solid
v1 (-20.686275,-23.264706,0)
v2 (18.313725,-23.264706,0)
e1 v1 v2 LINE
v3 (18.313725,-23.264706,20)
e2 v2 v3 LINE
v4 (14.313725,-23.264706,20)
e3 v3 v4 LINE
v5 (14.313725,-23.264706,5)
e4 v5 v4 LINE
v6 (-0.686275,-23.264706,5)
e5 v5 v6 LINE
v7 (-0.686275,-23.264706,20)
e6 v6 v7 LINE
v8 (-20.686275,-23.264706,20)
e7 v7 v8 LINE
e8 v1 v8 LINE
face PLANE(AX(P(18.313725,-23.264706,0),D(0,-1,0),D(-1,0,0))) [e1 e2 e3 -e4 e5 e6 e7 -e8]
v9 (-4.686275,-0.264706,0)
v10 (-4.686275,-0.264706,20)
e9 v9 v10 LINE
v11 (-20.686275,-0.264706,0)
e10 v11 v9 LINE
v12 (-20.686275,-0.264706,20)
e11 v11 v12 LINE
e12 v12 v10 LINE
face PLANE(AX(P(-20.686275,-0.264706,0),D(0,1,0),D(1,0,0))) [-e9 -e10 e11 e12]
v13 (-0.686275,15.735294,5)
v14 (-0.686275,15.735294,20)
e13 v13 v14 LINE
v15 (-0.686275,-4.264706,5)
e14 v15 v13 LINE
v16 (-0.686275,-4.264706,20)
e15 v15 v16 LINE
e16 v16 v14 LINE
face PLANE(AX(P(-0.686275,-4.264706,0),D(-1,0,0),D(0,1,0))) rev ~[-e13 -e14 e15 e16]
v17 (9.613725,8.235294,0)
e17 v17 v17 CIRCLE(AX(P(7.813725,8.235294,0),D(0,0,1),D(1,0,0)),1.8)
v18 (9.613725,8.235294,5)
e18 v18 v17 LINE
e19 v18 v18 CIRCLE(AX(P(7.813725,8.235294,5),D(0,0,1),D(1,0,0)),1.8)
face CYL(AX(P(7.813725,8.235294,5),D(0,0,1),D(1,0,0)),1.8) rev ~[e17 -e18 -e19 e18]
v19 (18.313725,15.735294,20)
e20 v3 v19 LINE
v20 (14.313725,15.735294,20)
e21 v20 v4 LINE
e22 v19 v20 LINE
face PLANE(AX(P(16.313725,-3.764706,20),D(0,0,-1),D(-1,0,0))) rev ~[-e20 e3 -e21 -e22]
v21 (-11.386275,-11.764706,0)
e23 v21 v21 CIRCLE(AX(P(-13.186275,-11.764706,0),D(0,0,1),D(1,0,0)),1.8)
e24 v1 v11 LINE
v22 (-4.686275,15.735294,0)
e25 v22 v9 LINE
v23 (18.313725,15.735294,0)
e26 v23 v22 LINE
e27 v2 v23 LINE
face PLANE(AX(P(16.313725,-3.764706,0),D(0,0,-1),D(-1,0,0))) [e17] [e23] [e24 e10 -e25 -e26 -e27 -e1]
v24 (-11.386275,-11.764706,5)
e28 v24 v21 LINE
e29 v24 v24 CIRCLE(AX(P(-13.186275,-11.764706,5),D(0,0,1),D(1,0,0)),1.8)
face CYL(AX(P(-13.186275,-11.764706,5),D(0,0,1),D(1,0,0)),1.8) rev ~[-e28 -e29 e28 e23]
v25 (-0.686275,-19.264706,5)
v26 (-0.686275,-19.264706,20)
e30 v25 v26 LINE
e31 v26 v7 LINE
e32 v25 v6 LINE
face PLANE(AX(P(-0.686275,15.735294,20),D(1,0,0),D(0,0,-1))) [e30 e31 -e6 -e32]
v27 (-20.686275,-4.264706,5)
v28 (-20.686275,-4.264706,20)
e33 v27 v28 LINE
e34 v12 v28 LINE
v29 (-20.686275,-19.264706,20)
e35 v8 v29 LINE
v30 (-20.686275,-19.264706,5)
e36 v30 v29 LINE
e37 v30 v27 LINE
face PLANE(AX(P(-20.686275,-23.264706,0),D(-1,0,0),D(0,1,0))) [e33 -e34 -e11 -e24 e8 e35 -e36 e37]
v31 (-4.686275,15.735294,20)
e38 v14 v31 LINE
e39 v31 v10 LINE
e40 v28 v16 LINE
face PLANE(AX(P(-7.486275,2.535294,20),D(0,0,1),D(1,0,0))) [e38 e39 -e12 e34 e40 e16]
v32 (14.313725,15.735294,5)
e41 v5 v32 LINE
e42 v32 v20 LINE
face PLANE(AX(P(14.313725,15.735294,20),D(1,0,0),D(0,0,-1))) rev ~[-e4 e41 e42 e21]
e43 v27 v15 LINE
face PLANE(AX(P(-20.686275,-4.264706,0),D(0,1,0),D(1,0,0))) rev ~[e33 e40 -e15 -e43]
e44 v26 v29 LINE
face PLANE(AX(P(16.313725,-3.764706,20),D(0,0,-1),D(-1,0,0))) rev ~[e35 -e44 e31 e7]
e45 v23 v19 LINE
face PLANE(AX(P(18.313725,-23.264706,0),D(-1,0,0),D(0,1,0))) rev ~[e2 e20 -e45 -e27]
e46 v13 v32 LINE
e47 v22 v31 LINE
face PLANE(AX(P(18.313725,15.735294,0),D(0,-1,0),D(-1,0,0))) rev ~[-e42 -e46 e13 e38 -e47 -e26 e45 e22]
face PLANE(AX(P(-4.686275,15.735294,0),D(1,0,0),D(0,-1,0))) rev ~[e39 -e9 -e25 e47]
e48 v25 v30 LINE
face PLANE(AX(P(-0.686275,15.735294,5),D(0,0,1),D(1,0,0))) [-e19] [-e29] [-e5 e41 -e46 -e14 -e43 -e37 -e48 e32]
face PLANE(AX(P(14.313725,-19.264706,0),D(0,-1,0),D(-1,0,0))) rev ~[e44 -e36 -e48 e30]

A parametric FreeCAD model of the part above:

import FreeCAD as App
import Part
import Sketcher
Q = App.Units.Quantity


def add_polygon(sketch, points):
    """Adds a closed chain of lines whose ends are joined by coincident constraints."""
    first, n = sketch.GeometryCount, len(points)
    for a, b in zip(points, points[1:] + points[:1]):
        sketch.addGeometry(Part.LineSegment(App.Vector(*a, 0), App.Vector(*b, 0)), False)
    for i in range(n):
        sketch.addConstraint(Sketcher.Constraint("Coincident", first + i, 2, first + (i + 1) % n, 1))

doc = App.newDocument("Part")
body = doc.addObject("PartDesign::Body", "Body")

sketch1 = body.newObject("Sketcher::SketchObject", "Sketch")
sketch1.AttachmentSupport = (doc.getObject("XY_Plane"), [""])
sketch1.MapMode = "FlatFace"
add_polygon(sketch1, [(-1, -4), (-21, -4), (-21, -19), (14, -19), (14, 16), (-1, 16)])
sketch1.addConstraint(Sketcher.Constraint("Horizontal", 0))
sketch1.addConstraint(Sketcher.Constraint("Vertical", 1))
sketch1.addConstraint(Sketcher.Constraint("Horizontal", 2))
sketch1.addConstraint(Sketcher.Constraint("Vertical", 3))
sketch1.addConstraint(Sketcher.Constraint("Horizontal", 4))
sketch1.addConstraint(Sketcher.Constraint("Vertical", 5))
sketch1.addConstraint(Sketcher.Constraint("Equal", 4, 1))
sketch1.addConstraint(Sketcher.Constraint("Equal", 2, 3))
sketch1.addConstraint(Sketcher.Constraint("DistanceX", 0, 2, 0, 1, Q("20 mm")))
sketch1.addConstraint(Sketcher.Constraint("DistanceX", 2, 1, 2, 2, Q("35 mm")))
sketch1.addConstraint(Sketcher.Constraint("DistanceX", 0, 2, -1, 1, Q("20.686275 mm")))
sketch1.addConstraint(Sketcher.Constraint("DistanceY", 0, 2, -1, 1, Q("4.264706 mm")))
pad1 = body.newObject("PartDesign::Pad", "Pad")
pad1.Profile = sketch1
pad1.Length = 5

sketch2 = body.newObject("Sketcher::SketchObject", "Sketch001")
sketch2.AttachmentSupport = (doc.getObject("XY_Plane"), [""])
sketch2.MapMode = "FlatFace"
add_polygon(sketch2, [(-4.7, 15.7), (-0.7, 15.7), (-0.7, -4.3), (-20.7, -4.3), (-20.7, -0.3), (-4.7, -0.3)])
sketch2.addConstraint(Sketcher.Constraint("Horizontal", 0))
sketch2.addConstraint(Sketcher.Constraint("Vertical", 1))
sketch2.addConstraint(Sketcher.Constraint("Horizontal", 2))
sketch2.addConstraint(Sketcher.Constraint("Vertical", 3))
sketch2.addConstraint(Sketcher.Constraint("Horizontal", 4))
sketch2.addConstraint(Sketcher.Constraint("Vertical", 5))
sketch2.addConstraint(Sketcher.Constraint("Equal", 2, 1))
sketch2.addConstraint(Sketcher.Constraint("Equal", 0, 3))
sketch2.addConstraint(Sketcher.Constraint("DistanceX", 0, 1, 0, 2, Q("4 mm")))
sketch2.addConstraint(Sketcher.Constraint("DistanceX", 2, 2, 2, 1, Q("20 mm")))
sketch2.addConstraint(Sketcher.Constraint("DistanceX", 0, 2, -1, 1, Q("0.686275 mm")))
sketch2.addConstraint(Sketcher.Constraint("DistanceY", -1, 1, 0, 2, Q("15.735294 mm")))
pad2 = body.newObject("PartDesign::Pad", "Pad001")
pad2.Profile = sketch2
pad2.Length = 20

sketch3 = body.newObject("Sketcher::SketchObject", "Sketch002")
sketch3.AttachmentSupport = (doc.getObject("XY_Plane"), [""])
sketch3.MapMode = "FlatFace"
add_polygon(sketch3, [(14.3, -19.3), (14.3, -23.3), (-20.7, -23.3), (-20.7, -19.3)])
sketch3.addConstraint(Sketcher.Constraint("Vertical", 0))
sketch3.addConstraint(Sketcher.Constraint("Horizontal", 1))
sketch3.addConstraint(Sketcher.Constraint("Vertical", 2))
sketch3.addConstraint(Sketcher.Constraint("Horizontal", 3))
sketch3.addConstraint(Sketcher.Constraint("DistanceX", 1, 2, 1, 1, Q("35 mm")))
sketch3.addConstraint(Sketcher.Constraint("DistanceY", 0, 2, 0, 1, Q("4 mm")))
sketch3.addConstraint(Sketcher.Constraint("DistanceX", -1, 1, 0, 2, Q("14.313725 mm")))
sketch3.addConstraint(Sketcher.Constraint("DistanceY", 0, 2, -1, 1, Q("23.264706 mm")))
pad3 = body.newObject("PartDesign::Pad", "Pad002")
pad3.Profile = sketch3
pad3.Length = 20

sketch4 = body.newObject("Sketcher::SketchObject", "Sketch003")
sketch4.AttachmentSupport = (doc.getObject("XY_Plane"), [""])
sketch4.MapMode = "FlatFace"
sketch4.AttachmentOffset = App.Placement(App.Vector(0, 0, 5), App.Rotation())
sketch4.addGeometry(Part.Circle(App.Vector(7.8, 8.2, 0), App.Vector(0, 0, 1), 1.8), False)
sketch4.addGeometry(Part.Circle(App.Vector(-13.2, -11.8, 0), App.Vector(0, 0, 1), 1.8), False)
sketch4.addConstraint(Sketcher.Constraint("Equal", 0, 1))
sketch4.addConstraint(Sketcher.Constraint("Diameter", 0, Q("3.6 mm")))
sketch4.addConstraint(Sketcher.Constraint("DistanceX", 1, 3, 0, 3, Q("21 mm")))
sketch4.addConstraint(Sketcher.Constraint("DistanceY", 1, 3, 0, 3, Q("20 mm")))
sketch4.addConstraint(Sketcher.Constraint("DistanceX", -1, 1, 0, 3, Q("7.813725 mm")))
sketch4.addConstraint(Sketcher.Constraint("DistanceY", -1, 1, 0, 3, Q("8.235294 mm")))
pocket1 = body.newObject("PartDesign::Pocket", "Pocket")
pocket1.Profile = sketch4
pocket1.Type = "ThroughAll"

sketch5 = body.newObject("Sketcher::SketchObject", "Sketch004")
sketch5.AttachmentSupport = (doc.getObject("XY_Plane"), [""])
sketch5.MapMode = "FlatFace"
add_polygon(sketch5, [(18.3, 15.7), (18.3, -23.3), (14.3, -23.3), (14.3, 15.7)])
sketch5.addConstraint(Sketcher.Constraint("Vertical", 0))
sketch5.addConstraint(Sketcher.Constraint("Horizontal", 1))
sketch5.addConstraint(Sketcher.Constraint("Vertical", 2))
sketch5.addConstraint(Sketcher.Constraint("Horizontal", 3))
sketch5.addConstraint(Sketcher.Constraint("DistanceX", 1, 2, 1, 1, Q("4 mm")))
sketch5.addConstraint(Sketcher.Constraint("DistanceY", 0, 2, 0, 1, Q("39 mm")))
sketch5.addConstraint(Sketcher.Constraint("DistanceX", -1, 1, 0, 2, Q("18.313725 mm")))
sketch5.addConstraint(Sketcher.Constraint("DistanceY", 0, 2, -1, 1, Q("23.264706 mm")))
pad4 = body.newObject("PartDesign::Pad", "Pad003")
pad4.Profile = sketch5
pad4.Length = 20

sketch6 = body.newObject("Sketcher::SketchObject", "Sketch005")
sketch6.AttachmentSupport = (doc.getObject("XZ_Plane"), [""])
sketch6.MapMode = "FlatFace"
sketch6.AttachmentOffset = App.Placement(App.Vector(0, 0, -15.735294), App.Rotation())
add_polygon(sketch6, [(-1, 5), (-1, 20), (14, 20), (14, 5)])
sketch6.addConstraint(Sketcher.Constraint("Vertical", 0))
sketch6.addConstraint(Sketcher.Constraint("Horizontal", 1))
sketch6.addConstraint(Sketcher.Constraint("Vertical", 2))
sketch6.addConstraint(Sketcher.Constraint("Horizontal", 3))
sketch6.addConstraint(Sketcher.Constraint("Equal", 3, 0))
sketch6.addConstraint(Sketcher.Constraint("DistanceX", 1, 1, 1, 2, Q("15 mm")))
sketch6.addConstraint(Sketcher.Constraint("DistanceY", -1, 1, 0, 2, Q("20 mm")))
sketch6.addConstraint(Sketcher.Constraint("DistanceX", 0, 2, -1, 1, Q("0.686275 mm")))
pocket2 = body.newObject("PartDesign::Pocket", "Pocket001")
pocket2.Profile = sketch6
pocket2.Type = "ThroughAll"
pocket2.Reversed = True

doc.recompute()
